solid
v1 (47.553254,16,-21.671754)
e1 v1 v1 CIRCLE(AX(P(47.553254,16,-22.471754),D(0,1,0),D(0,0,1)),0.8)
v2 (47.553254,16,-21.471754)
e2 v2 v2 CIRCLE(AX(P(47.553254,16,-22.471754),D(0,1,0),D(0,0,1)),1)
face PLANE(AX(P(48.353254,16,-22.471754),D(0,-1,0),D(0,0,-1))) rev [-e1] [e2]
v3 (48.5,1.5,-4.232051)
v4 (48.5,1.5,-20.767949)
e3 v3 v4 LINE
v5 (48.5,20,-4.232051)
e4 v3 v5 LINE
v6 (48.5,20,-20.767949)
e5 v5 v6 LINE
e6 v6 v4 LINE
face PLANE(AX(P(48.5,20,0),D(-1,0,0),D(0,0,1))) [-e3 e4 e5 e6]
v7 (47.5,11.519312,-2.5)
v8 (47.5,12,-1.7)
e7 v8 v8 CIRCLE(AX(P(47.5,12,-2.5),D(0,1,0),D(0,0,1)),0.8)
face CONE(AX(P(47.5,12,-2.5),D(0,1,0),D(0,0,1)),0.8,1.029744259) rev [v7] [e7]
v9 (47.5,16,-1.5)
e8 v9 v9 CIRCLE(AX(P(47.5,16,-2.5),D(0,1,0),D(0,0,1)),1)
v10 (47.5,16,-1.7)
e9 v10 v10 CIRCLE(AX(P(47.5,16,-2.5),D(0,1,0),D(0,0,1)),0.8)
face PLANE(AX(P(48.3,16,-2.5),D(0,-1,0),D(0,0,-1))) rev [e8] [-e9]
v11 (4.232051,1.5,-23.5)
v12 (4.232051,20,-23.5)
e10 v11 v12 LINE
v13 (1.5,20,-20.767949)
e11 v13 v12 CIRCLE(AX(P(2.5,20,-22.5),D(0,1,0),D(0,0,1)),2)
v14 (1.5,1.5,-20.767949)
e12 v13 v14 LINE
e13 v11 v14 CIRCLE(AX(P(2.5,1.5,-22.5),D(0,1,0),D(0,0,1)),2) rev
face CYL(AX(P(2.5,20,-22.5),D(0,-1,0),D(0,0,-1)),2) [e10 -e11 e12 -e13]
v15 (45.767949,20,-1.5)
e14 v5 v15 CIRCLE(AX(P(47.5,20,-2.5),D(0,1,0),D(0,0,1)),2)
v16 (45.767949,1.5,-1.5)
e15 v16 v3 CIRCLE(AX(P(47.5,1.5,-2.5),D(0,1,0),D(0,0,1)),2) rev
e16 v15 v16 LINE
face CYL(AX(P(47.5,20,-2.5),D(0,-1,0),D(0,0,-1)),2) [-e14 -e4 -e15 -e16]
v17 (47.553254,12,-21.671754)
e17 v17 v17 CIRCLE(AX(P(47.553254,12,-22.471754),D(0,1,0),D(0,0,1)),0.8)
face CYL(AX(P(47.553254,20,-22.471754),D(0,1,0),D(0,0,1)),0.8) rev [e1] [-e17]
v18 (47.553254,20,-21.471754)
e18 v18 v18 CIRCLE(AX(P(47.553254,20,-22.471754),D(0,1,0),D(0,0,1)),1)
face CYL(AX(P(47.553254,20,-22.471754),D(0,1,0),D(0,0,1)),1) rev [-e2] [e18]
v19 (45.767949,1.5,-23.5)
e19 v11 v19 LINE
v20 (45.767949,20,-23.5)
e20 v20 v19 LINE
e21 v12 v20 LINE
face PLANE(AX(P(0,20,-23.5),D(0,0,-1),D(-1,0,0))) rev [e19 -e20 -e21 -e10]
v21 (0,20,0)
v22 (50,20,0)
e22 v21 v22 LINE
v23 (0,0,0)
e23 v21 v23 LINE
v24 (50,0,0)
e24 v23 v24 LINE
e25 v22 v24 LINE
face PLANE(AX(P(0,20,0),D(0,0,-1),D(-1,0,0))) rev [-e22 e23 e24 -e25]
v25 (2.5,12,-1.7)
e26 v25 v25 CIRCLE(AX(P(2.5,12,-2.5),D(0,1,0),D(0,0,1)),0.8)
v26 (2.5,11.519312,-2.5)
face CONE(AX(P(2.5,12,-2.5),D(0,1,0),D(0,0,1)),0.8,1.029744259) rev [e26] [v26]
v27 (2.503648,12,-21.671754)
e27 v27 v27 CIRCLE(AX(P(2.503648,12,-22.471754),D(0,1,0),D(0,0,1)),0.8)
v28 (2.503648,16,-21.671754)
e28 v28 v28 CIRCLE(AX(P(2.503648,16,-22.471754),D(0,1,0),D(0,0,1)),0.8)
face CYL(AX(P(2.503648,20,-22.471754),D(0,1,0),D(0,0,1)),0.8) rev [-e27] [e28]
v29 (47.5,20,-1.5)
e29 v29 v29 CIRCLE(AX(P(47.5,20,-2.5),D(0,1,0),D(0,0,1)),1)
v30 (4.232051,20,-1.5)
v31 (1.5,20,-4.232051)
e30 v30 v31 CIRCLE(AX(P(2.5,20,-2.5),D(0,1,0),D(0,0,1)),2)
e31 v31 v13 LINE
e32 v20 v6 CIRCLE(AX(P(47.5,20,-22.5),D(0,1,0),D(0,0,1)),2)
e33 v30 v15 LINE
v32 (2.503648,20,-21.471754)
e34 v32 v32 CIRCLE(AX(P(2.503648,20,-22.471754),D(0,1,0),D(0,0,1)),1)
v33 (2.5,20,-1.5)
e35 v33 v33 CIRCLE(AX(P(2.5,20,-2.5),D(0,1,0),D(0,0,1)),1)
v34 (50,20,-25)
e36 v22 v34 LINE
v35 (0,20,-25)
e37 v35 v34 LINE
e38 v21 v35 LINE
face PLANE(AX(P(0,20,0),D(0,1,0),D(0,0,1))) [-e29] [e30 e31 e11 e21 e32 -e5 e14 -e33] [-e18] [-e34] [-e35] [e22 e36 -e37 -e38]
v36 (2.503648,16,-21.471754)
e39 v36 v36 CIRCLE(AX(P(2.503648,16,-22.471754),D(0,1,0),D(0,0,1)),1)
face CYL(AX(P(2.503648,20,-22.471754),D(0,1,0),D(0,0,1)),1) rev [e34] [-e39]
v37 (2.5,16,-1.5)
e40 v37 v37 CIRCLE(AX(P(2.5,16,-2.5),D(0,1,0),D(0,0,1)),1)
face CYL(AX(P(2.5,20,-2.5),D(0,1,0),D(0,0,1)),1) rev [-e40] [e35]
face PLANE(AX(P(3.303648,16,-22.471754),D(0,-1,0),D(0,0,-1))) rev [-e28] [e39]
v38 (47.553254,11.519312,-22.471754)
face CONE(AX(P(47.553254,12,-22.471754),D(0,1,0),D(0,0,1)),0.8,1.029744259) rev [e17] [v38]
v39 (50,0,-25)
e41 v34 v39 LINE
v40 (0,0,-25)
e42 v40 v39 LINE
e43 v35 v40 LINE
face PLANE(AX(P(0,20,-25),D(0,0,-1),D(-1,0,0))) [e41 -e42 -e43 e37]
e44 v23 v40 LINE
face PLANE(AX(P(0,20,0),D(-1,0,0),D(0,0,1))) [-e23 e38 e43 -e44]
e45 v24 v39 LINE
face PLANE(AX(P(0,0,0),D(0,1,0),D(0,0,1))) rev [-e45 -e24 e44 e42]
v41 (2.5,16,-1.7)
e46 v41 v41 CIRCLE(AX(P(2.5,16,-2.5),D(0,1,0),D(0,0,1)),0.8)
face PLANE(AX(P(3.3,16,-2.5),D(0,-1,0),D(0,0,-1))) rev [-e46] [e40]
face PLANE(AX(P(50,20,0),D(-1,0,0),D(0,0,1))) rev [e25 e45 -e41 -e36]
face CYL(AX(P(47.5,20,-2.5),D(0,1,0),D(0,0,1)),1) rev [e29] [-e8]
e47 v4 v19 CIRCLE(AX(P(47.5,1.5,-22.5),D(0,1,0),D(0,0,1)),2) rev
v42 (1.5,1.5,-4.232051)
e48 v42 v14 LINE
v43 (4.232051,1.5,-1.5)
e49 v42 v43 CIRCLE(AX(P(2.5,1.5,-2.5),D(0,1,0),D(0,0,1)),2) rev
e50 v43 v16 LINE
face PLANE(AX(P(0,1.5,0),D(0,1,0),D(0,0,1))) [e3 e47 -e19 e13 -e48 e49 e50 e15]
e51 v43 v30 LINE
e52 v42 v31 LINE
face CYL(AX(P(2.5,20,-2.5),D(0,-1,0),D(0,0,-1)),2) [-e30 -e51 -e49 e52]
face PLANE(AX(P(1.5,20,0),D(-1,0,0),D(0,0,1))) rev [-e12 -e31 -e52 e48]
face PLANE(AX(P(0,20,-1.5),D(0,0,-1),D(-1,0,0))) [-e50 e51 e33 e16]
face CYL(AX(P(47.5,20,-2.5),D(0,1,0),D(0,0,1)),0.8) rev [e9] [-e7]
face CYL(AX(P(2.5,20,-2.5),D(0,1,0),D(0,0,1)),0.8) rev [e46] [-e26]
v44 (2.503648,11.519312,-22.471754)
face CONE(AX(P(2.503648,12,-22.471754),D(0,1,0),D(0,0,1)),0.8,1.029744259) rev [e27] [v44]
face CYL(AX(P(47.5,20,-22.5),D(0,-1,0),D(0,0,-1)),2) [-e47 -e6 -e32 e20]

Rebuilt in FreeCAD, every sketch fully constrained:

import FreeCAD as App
import Part
import Sketcher

V = App.Vector


def faces_at(feature, points):
    """Names of the faces that lie closest to the given points."""
    faces = feature.Shape.Faces
    near = lambda p: min(range(len(faces)), key=lambda i: faces[i].distToShape(Part.Vertex(*p))[0])
    return sorted({f"Face{near(p) + 1}" for p in points})

doc = App.newDocument("Part")
params = doc.addObject("Spreadsheet::Sheet", "Params")
for row, (alias, value) in enumerate([
    ("sketch1_width", "50 mm"),
    ("sketch1_height", "25 mm"),
    ("pad1_length", "20 mm"),
    ("thickness_wall", "1.5 mm"),
    ("sketch2_diameter", "4 mm"),
    ("pad2_length", "20 mm"),
    ("sketch3_diameter", "1.6 mm"),
    ("hole_diameter", "1.6 mm"),
    ("hole_depth", "8 mm"),
    ("hole_cbore_diameter", "2 mm"),
    ("hole_cbore_depth", "4 mm"),
], start=1):
    params.set(f"A{row}", alias)
    params.set(f"B{row}", "=" + value)
    params.setAlias(f"B{row}", alias)

body = doc.addObject("PartDesign::Body", "Body")

# Sketch on XZ plane
sketch1 = body.newObject("Sketcher::SketchObject", "Sketch")
sketch1.AttachmentSupport = (doc.getObject("XZ_Plane"), [""])
sketch1.MapMode = "FlatFace"
sketch1.addGeometry([
    Part.LineSegment(V(0, -25, 0), V(0, 0, 0)),
    Part.LineSegment(V(0, 0, 0), V(50, 0, 0)),
    Part.LineSegment(V(50, 0, 0), V(50, -25, 0)),
    Part.LineSegment(V(50, -25, 0), V(0, -25, 0)),
], False)
sketch1.addConstraint([
    Sketcher.Constraint("Coincident", 0, 2, 1, 1),
    Sketcher.Constraint("Coincident", 1, 2, 2, 1),
    Sketcher.Constraint("Coincident", 2, 2, 3, 1),
    Sketcher.Constraint("Coincident", 3, 2, 0, 1),
    Sketcher.Constraint("Vertical", 0),
    Sketcher.Constraint("Horizontal", 1),
    Sketcher.Constraint("Vertical", 2),
    Sketcher.Constraint("Horizontal", 3),
    Sketcher.Constraint("Coincident", 0, 2, -1, 1),
    Sketcher.Constraint("DistanceX", 1, 1, 1, 2, 50.0),
    Sketcher.Constraint("DistanceY", 0, 1, 0, 2, 25.0),
])
sketch1.setExpression("Constraints[9]", "Params.sketch1_width")
sketch1.setExpression("Constraints[10]", "Params.sketch1_height")
pad1 = body.newObject("PartDesign::Pad", "Pad")
pad1.Profile = sketch1
pad1.setExpression("Length", "Params.pad1_length")
pad1.Reversed = True
doc.recompute()

thickness = body.newObject("PartDesign::Thickness", "Thickness")
thickness.Base = (pad1, faces_at(pad1, [(25, 20, -12.5)]))
thickness.setExpression("Value", "Params.thickness_wall")
thickness.Reversed = True
thickness.Join = "Intersection"

# Sketch on XZ plane
sketch2 = body.newObject("Sketcher::SketchObject", "Sketch001")
sketch2.AttachmentSupport = (doc.getObject("XZ_Plane"), [""])
sketch2.MapMode = "FlatFace"
sketch2.addGeometry([
    Part.Circle(V(2.5, -22.5, 0), V(0, 0, 1), 2),
    Part.Circle(V(47.5, -22.5, 0), V(0, 0, 1), 2),
    Part.Circle(V(47.5, -2.5, 0), V(0, 0, 1), 2),
    Part.Circle(V(2.5, -2.5, 0), V(0, 0, 1), 2),
], False)
sketch2.addConstraint([
    Sketcher.Constraint("Equal", 0, 1),
    Sketcher.Constraint("Equal", 1, 2),
    Sketcher.Constraint("Equal", 2, 3),
    Sketcher.Constraint("Horizontal", 0, 3, 1, 3),
    Sketcher.Constraint("Horizontal", 2, 3, 3, 3),
    Sketcher.Constraint("Vertical", 1, 3, 2, 3),
    Sketcher.Constraint("Vertical", 0, 3, 3, 3),
    Sketcher.Constraint("Diameter", 0, 4.0),
    Sketcher.Constraint("DistanceX", 0, 3, 1, 3, 45.0),
    Sketcher.Constraint("DistanceY", 1, 3, 2, 3, 20.0),
    Sketcher.Constraint("DistanceX", -1, 1, 0, 3, 2.5),
    Sketcher.Constraint("DistanceY", 0, 3, -1, 1, 22.5),
])
sketch2.setExpression("Constraints[7]", "Params.sketch2_diameter")
pad2 = body.newObject("PartDesign::Pad", "Pad001")
pad2.Profile = sketch2
pad2.setExpression("Length", "Params.pad2_length")
pad2.Reversed = True

# Sketch on XZ plane
sketch3 = body.newObject("Sketcher::SketchObject", "Sketch002")
sketch3.AttachmentSupport = (doc.getObject("XZ_Plane"), [""])
sketch3.MapMode = "FlatFace"
sketch3.AttachmentOffset = App.Placement(V(0, 0, -20), App.Rotation())
sketch3.addGeometry([
    Part.Circle(V(47.6, -22.5, 0), V(0, 0, 1), 0.8),
    Part.Circle(V(47.5, -2.5, 0), V(0, 0, 1), 0.8),
    Part.Circle(V(2.5, -22.5, 0), V(0, 0, 1), 0.8),
    Part.Circle(V(2.5, -2.5, 0), V(0, 0, 1), 0.8),
], False)
sketch3.addConstraint([
    Sketcher.Constraint("Equal", 0, 1),
    Sketcher.Constraint("Equal", 1, 2),
    Sketcher.Constraint("Equal", 2, 3),
    Sketcher.Constraint("Horizontal", 0, 3, 2, 3),
    Sketcher.Constraint("Horizontal", 1, 3, 3, 3),
    Sketcher.Constraint("Diameter", 0, 1.6),
    Sketcher.Constraint("DistanceX", 3, 3, 1, 3, 45.0),
    Sketcher.Constraint("DistanceX", -1, 1, 1, 3, 47.5),
    Sketcher.Constraint("DistanceY", 1, 3, -1, 1, 2.5),
    Sketcher.Constraint("DistanceX", -1, 1, 2, 3, 2.503648),
    Sketcher.Constraint("DistanceX", -1, 1, 0, 3, 47.553254),
    Sketcher.Constraint("DistanceY", 0, 3, -1, 1, 22.471754),
])
sketch3.setExpression("Constraints[5]", "Params.sketch3_diameter")
doc.recompute()
hole = body.newObject("PartDesign::Hole", "Hole")
hole.Profile = sketch3
hole.ThreadType = "None"
hole.setExpression("Diameter", "Params.hole_diameter")
hole.DepthType = "Dimension"
hole.setExpression("Depth", "Params.hole_depth")
hole.DrillPoint = "Angled"
hole.DrillPointAngle = 118
hole.HoleCutType = "Counterbore"
hole.setExpression("HoleCutDiameter", "Params.hole_cbore_diameter")
hole.setExpression("HoleCutDepth", "Params.hole_cbore_depth")
hole.Reversed = True

doc.recompute()
